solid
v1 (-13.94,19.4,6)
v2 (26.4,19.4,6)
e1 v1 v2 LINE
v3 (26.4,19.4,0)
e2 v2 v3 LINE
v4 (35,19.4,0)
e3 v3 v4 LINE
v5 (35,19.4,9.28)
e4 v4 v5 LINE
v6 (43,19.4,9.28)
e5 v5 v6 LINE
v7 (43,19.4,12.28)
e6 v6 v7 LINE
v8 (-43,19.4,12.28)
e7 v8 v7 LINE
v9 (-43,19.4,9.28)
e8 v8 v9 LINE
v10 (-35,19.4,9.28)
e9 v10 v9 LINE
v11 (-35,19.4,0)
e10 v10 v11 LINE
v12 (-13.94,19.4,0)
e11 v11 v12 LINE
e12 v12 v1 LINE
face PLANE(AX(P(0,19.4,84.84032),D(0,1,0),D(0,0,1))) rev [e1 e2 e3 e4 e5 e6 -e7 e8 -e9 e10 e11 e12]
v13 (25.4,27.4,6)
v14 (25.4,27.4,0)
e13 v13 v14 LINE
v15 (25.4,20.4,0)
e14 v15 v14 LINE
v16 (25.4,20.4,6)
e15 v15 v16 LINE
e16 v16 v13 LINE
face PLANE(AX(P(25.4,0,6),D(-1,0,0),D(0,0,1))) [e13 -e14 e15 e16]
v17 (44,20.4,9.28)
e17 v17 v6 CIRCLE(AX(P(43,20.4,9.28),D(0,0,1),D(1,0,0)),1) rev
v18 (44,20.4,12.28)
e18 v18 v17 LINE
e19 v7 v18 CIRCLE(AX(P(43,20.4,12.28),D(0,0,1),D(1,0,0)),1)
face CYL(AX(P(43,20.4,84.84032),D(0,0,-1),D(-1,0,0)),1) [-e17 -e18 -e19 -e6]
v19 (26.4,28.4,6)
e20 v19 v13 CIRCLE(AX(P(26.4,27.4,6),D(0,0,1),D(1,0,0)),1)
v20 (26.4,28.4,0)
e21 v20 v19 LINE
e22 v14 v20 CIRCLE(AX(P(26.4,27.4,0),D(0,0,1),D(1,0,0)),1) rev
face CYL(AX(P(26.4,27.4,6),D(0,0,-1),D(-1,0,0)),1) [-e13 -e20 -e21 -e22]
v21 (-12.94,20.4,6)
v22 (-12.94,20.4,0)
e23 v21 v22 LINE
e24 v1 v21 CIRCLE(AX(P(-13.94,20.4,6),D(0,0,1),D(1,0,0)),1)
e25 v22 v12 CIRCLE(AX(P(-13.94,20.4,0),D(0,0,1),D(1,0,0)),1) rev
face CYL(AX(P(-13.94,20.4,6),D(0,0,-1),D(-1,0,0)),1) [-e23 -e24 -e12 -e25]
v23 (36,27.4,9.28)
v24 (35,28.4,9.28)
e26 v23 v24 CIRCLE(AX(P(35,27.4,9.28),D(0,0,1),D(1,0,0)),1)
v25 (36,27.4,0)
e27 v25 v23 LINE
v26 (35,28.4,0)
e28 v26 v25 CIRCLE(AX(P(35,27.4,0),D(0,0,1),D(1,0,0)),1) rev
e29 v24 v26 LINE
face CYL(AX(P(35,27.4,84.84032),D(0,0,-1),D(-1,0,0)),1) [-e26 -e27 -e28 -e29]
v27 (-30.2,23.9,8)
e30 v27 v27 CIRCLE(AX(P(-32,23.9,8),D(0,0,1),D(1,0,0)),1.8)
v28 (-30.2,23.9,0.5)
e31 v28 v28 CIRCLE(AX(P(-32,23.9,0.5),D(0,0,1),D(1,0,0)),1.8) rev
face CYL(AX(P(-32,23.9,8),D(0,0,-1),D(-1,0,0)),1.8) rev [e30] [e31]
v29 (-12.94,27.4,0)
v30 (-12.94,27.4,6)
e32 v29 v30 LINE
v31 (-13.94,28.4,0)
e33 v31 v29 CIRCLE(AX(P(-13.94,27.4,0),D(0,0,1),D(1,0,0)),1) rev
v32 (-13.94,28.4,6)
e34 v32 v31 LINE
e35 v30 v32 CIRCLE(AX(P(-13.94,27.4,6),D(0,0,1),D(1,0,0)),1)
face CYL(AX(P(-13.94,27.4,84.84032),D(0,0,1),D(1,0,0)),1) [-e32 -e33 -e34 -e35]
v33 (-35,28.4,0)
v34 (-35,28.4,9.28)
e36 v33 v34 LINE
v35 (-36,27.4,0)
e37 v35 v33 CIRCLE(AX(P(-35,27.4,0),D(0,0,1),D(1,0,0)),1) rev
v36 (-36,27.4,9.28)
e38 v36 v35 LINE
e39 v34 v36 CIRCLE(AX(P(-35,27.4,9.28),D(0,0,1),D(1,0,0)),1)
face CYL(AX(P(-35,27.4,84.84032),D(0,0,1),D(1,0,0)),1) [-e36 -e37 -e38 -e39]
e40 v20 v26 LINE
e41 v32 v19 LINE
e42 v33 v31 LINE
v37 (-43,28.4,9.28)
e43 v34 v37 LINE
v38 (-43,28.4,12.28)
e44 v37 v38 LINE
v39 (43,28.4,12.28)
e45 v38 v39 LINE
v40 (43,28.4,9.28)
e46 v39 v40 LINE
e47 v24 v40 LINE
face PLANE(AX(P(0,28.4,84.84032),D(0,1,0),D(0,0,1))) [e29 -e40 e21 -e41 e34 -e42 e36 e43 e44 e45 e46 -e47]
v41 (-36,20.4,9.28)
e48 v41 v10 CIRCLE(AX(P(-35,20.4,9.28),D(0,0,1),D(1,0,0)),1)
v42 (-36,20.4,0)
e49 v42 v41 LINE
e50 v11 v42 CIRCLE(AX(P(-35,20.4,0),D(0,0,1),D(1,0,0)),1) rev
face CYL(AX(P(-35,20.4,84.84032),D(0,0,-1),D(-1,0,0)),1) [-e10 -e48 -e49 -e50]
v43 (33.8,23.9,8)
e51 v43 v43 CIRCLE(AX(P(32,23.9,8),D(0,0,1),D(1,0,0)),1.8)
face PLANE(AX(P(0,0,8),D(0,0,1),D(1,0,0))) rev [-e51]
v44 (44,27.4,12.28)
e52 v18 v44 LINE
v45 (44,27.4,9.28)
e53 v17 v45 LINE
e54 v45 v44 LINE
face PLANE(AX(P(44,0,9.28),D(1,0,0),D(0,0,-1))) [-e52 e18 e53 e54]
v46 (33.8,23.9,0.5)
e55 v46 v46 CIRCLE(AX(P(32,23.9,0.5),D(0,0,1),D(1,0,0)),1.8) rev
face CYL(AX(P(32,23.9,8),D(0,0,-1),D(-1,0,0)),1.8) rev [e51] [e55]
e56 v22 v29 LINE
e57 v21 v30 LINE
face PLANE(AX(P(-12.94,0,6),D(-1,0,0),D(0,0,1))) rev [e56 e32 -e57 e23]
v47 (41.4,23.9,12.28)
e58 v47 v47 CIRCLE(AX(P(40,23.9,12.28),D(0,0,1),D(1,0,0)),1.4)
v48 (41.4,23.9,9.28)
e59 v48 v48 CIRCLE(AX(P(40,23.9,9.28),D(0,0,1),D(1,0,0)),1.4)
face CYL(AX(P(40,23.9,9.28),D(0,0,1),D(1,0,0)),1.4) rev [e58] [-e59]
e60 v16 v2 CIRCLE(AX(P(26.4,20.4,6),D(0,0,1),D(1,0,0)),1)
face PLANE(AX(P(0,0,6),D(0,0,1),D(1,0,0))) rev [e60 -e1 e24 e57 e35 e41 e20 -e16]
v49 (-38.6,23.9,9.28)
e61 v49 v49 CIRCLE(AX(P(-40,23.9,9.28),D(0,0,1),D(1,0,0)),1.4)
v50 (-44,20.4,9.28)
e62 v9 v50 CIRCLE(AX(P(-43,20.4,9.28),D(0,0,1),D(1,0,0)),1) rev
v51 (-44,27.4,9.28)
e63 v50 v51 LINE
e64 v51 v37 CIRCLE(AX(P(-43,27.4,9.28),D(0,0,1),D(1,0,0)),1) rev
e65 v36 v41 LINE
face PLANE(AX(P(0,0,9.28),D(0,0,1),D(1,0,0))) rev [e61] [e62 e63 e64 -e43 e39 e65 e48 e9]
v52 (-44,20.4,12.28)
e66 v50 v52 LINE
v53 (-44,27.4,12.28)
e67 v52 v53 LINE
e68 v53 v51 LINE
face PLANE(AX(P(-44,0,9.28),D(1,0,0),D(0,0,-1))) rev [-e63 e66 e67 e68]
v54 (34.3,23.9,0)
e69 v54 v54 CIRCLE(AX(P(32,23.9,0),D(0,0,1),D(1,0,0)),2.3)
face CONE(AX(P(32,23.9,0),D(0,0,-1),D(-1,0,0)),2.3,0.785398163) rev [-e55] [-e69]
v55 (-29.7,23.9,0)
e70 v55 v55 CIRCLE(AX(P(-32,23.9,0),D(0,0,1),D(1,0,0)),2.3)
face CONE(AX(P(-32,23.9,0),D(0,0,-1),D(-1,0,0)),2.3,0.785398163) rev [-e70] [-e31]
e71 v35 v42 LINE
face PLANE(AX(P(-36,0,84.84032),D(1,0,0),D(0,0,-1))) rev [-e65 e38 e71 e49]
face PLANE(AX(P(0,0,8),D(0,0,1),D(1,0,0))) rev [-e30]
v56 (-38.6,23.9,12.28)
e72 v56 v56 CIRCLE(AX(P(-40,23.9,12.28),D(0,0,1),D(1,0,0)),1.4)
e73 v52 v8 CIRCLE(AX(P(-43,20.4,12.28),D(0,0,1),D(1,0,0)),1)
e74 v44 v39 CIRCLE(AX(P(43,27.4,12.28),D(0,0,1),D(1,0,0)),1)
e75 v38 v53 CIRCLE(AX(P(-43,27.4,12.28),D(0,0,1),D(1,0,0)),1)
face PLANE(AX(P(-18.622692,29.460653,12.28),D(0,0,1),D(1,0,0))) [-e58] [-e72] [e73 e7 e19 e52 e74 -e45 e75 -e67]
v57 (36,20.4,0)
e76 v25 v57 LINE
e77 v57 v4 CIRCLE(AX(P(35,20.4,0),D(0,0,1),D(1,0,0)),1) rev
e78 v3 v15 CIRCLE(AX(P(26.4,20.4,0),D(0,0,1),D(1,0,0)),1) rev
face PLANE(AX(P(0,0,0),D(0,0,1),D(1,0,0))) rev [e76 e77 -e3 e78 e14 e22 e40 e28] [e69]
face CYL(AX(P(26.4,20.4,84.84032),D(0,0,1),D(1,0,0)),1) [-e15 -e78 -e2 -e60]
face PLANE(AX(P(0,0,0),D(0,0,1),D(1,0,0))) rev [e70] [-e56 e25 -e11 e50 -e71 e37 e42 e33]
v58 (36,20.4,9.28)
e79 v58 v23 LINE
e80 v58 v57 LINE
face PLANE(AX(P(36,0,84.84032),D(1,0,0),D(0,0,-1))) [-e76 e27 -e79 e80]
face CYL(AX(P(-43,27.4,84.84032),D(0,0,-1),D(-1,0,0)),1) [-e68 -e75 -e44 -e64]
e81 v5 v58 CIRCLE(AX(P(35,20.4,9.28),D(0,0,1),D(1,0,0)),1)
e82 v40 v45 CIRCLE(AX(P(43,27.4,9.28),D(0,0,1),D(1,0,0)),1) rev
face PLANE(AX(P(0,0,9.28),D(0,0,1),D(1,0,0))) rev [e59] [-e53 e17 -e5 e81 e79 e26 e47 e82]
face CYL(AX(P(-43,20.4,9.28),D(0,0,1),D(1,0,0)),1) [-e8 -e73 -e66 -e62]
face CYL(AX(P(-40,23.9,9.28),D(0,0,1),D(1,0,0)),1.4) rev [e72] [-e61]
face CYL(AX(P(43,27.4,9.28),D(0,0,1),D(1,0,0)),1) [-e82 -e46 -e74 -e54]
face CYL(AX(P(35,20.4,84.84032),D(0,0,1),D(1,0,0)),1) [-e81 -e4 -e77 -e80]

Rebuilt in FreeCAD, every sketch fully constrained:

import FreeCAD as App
import Part
import Sketcher
from FreeCAD import Vector


def edges_at(feature, points):
    """Names of the edges that pass closest to the given points."""
    edges = feature.Shape.Edges
    near = lambda p: min(range(len(edges)), key=lambda i: edges[i].distToShape(Part.Vertex(*p))[0])
    return sorted({f"Edge{near(p) + 1}" for p in points})

doc = App.newDocument("Part")
params = doc.addObject("Spreadsheet::Sheet", "Params")
for row, (alias, value) in enumerate([
    ("sketch1_width", "72 mm"),
    ("sketch1_height", "9 mm"),
    ("pad1_length", "12.28 mm"),
    ("sketch2_height", "9 mm"),
    ("sketch2_width", "38.34 mm"),
    ("pocket1_length", "6 mm"),
    ("sketch3_diameter", "3.6 mm"),
    ("pocket2_length", "8 mm"),
    ("sketch4_diameter", "2.8 mm"),
    ("sketch4_width", "8 mm"),
    ("sketch4_height", "9 mm"),
    ("pad2_length", "3 mm"),
    ("fillet_radius", "1 mm"),
    ("chamfer_size", "0.5 mm"),
], start=1):
    params.set(f"A{row}", alias)
    params.set(f"B{row}", "=" + value)
    params.setAlias(f"B{row}", alias)

body = doc.addObject("PartDesign::Body", "Body")

# Sketch on XY plane
sketch1 = doc.addObject("Sketcher::SketchObject", "Sketch")
body.addObject(sketch1)
sketch1.AttachmentSupport = (doc.XY_Plane, [""])
sketch1.MapMode = "FlatFace"
sketch1.addGeometry([
    Part.LineSegment(Vector(36, 28, 0), Vector(-36, 28, 0)),
    Part.LineSegment(Vector(-36, 28, 0), Vector(-36, 19, 0)),
    Part.LineSegment(Vector(-36, 19, 0), Vector(36, 19, 0)),
    Part.LineSegment(Vector(36, 19, 0), Vector(36, 28, 0)),
], False)
sketch1.addConstraint([
    Sketcher.Constraint("Coincident", 0, 2, 1, 1),
    Sketcher.Constraint("Coincident", 1, 2, 2, 1),
    Sketcher.Constraint("Coincident", 2, 2, 3, 1),
    Sketcher.Constraint("Coincident", 3, 2, 0, 1),
    Sketcher.Constraint("Horizontal", 0),
    Sketcher.Constraint("Vertical", 1),
    Sketcher.Constraint("Horizontal", 2),
    Sketcher.Constraint("Vertical", 3),
    Sketcher.Constraint("DistanceX", 0, 2, 0, 1, 72.0),
    Sketcher.Constraint("DistanceY", 1, 2, 1, 1, 9.0),
    Sketcher.Constraint("DistanceX", 0, 2, -1, 1, 36.0),
    Sketcher.Constraint("DistanceY", -1, 1, 0, 2, 28.4),
])
sketch1.setExpression("Constraints[8]", "Params.sketch1_width")
sketch1.setExpression("Constraints[9]", "Params.sketch1_height")
pad1 = doc.addObject("PartDesign::Pad", "Pad")
body.addObject(pad1)
pad1.Profile = sketch1
pad1.setExpression("Length", "Params.pad1_length")

# Sketch on XY plane
sketch2 = doc.addObject("Sketcher::SketchObject", "Sketch001")
body.addObject(sketch2)
sketch2.AttachmentSupport = (doc.XY_Plane, [""])
sketch2.MapMode = "FlatFace"
sketch2.addGeometry([
    Part.LineSegment(Vector(25, 28, 0), Vector(-13, 28, 0)),
    Part.LineSegment(Vector(-13, 28, 0), Vector(-13, 19, 0)),
    Part.LineSegment(Vector(-13, 19, 0), Vector(25, 19, 0)),
    Part.LineSegment(Vector(25, 19, 0), Vector(25, 28, 0)),
], False)
sketch2.addConstraint([
    Sketcher.Constraint("Coincident", 0, 2, 1, 1),
    Sketcher.Constraint("Coincident", 1, 2, 2, 1),
    Sketcher.Constraint("Coincident", 2, 2, 3, 1),
    Sketcher.Constraint("Coincident", 3, 2, 0, 1),
    Sketcher.Constraint("Horizontal", 0),
    Sketcher.Constraint("Vertical", 1),
    Sketcher.Constraint("Horizontal", 2),
    Sketcher.Constraint("Vertical", 3),
    Sketcher.Constraint("DistanceY", 1, 2, 1, 1, 9.0),
    Sketcher.Constraint("DistanceX", 0, 2, 0, 1, 38.34),
    Sketcher.Constraint("DistanceY", -1, 1, 0, 2, 28.4),
    Sketcher.Constraint("DistanceX", -1, 1, 2, 2, 25.4),
])
sketch2.setExpression("Constraints[8]", "Params.sketch2_height")
sketch2.setExpression("Constraints[9]", "Params.sketch2_width")
pocket1 = doc.addObject("PartDesign::Pocket", "Pocket")
body.addObject(pocket1)
pocket1.Profile = sketch2
pocket1.setExpression("Length", "Params.pocket1_length")
pocket1.Reversed = True

# Sketch on XY plane
sketch3 = doc.addObject("Sketcher::SketchObject", "Sketch002")
body.addObject(sketch3)
sketch3.AttachmentSupport = (doc.XY_Plane, [""])
sketch3.MapMode = "FlatFace"
sketch3.addGeometry([
    Part.Circle(Vector(-32, 23.9, 0), Vector(0, 0, 1), 1.8),
    Part.Circle(Vector(32, 23.9, 0), Vector(0, 0, 1), 1.8),
], False)
sketch3.addConstraint([
    Sketcher.Constraint("Equal", 0, 1),
    Sketcher.Constraint("Symmetric", 0, 3, 1, 3, -2),
    Sketcher.Constraint("Diameter", 0, 3.6),
    Sketcher.Constraint("DistanceX", 0, 3, -1, 1, 32.0),
    Sketcher.Constraint("DistanceY", -1, 1, 0, 3, 23.9),
])
sketch3.setExpression("Constraints[2]", "Params.sketch3_diameter")
pocket2 = doc.addObject("PartDesign::Pocket", "Pocket001")
body.addObject(pocket2)
pocket2.Profile = sketch3
pocket2.setExpression("Length", "Params.pocket2_length")
pocket2.Reversed = True

# Sketch on XY plane
sketch4 = doc.addObject("Sketcher::SketchObject", "Sketch003")
body.addObject(sketch4)
sketch4.AttachmentSupport = (doc.XY_Plane, [""])
sketch4.MapMode = "FlatFace"
sketch4.AttachmentOffset = App.Placement(Vector(0, 0, 12.28), App.Rotation())
sketch4.addGeometry([
    Part.LineSegment(Vector(-44, 28.4, 0), Vector(-44, 19.4, 0)),  # 0
    Part.LineSegment(Vector(-44, 19.4, 0), Vector(-36, 19.4, 0)),  # 1
    Part.LineSegment(Vector(-36, 19.4, 0), Vector(-36, 28.4, 0)),  # 2
    Part.LineSegment(Vector(-36, 28.4, 0), Vector(-44, 28.4, 0)),  # 3
    Part.Circle(Vector(-40, 23.9, 0), Vector(0, 0, 1), 1.4),  # 4
    Part.LineSegment(Vector(36, 28.4, 0), Vector(36, 19.4, 0)),  # 5
    Part.LineSegment(Vector(36, 19.4, 0), Vector(44, 19.4, 0)),  # 6
    Part.LineSegment(Vector(44, 19.4, 0), Vector(44, 28.4, 0)),  # 7
    Part.LineSegment(Vector(44, 28.4, 0), Vector(36, 28.4, 0)),  # 8
    Part.Circle(Vector(40, 23.9, 0), Vector(0, 0, 1), 1.4),  # 9
], False)
sketch4.addConstraint([
    Sketcher.Constraint("Coincident", 0, 2, 1, 1),
    Sketcher.Constraint("Coincident", 1, 2, 2, 1),
    Sketcher.Constraint("Coincident", 2, 2, 3, 1),
    Sketcher.Constraint("Coincident", 3, 2, 0, 1),
    Sketcher.Constraint("Coincident", 5, 2, 6, 1),
    Sketcher.Constraint("Coincident", 6, 2, 7, 1),
    Sketcher.Constraint("Coincident", 7, 2, 8, 1),
    Sketcher.Constraint("Coincident", 8, 2, 5, 1),
    Sketcher.Constraint("Vertical", 0),
    Sketcher.Constraint("Horizontal", 1),
    Sketcher.Constraint("Vertical", 2),
    Sketcher.Constraint("Horizontal", 3),
    Sketcher.Constraint("Vertical", 5),
    Sketcher.Constraint("Horizontal", 6),
    Sketcher.Constraint("Vertical", 7),
    Sketcher.Constraint("Horizontal", 8),
    Sketcher.Constraint("Equal", 4, 9),
    Sketcher.Constraint("Symmetric", 4, 3, 9, 3, -2),
    Sketcher.Constraint("Symmetric", 1, 2, 5, 2, -2),
    Sketcher.Constraint("Symmetric", 3, 2, 7, 2, -2),
    Sketcher.Constraint("Diameter", 4, 2.8),
    Sketcher.Constraint("DistanceX", 1, 1, 1, 2, 8.0),
    Sketcher.Constraint("DistanceY", 0, 2, 0, 1, 9.0),
    Sketcher.Constraint("DistanceX", 4, 3, -1, 1, 40.0),
    Sketcher.Constraint("DistanceX", 0, 2, -1, 1, 44.0),
    Sketcher.Constraint("DistanceY", -1, 1, 4, 3, 23.9),
    Sketcher.Constraint("DistanceY", -1, 1, 0, 2, 19.4),
])
sketch4.setExpression("Constraints[20]", "Params.sketch4_diameter")
sketch4.setExpression("Constraints[21]", "Params.sketch4_width")
sketch4.setExpression("Constraints[22]", "Params.sketch4_height")
pad2 = doc.addObject("PartDesign::Pad", "Pad001")
body.addObject(pad2)
pad2.Profile = sketch4
pad2.setExpression("Length", "Params.pad2_length")
pad2.Reversed = True
doc.recompute()

fillet = doc.addObject("PartDesign::Fillet", "Fillet")
body.addObject(fillet)
fillet.Base = (pad2, edges_at(pad2, [
    (-12.94, 19.4, 3),
    (25.4, 19.4, 3),
    (25.4, 28.4, 3),
    (-12.94, 28.4, 3),
    (-36, 28.4, 4.64),
    (-36, 19.4, 4.64),
    (36, 28.4, 4.64),
    (36, 19.4, 4.64),
    (-44, 19.4, 10.78),
    (-44, 28.4, 10.78),
    (44, 19.4, 10.78),
    (44, 28.4, 10.78),
]))
fillet.setExpression("Radius", "Params.fillet_radius")
doc.recompute()

chamfer = doc.addObject("PartDesign::Chamfer", "Chamfer")
body.addObject(chamfer)
chamfer.Base = (fillet, edges_at(fillet, [(-33.8, 23.9, 0), (30.2, 23.9, 0)]))
chamfer.setExpression("Size", "Params.chamfer_size")

doc.recompute()
